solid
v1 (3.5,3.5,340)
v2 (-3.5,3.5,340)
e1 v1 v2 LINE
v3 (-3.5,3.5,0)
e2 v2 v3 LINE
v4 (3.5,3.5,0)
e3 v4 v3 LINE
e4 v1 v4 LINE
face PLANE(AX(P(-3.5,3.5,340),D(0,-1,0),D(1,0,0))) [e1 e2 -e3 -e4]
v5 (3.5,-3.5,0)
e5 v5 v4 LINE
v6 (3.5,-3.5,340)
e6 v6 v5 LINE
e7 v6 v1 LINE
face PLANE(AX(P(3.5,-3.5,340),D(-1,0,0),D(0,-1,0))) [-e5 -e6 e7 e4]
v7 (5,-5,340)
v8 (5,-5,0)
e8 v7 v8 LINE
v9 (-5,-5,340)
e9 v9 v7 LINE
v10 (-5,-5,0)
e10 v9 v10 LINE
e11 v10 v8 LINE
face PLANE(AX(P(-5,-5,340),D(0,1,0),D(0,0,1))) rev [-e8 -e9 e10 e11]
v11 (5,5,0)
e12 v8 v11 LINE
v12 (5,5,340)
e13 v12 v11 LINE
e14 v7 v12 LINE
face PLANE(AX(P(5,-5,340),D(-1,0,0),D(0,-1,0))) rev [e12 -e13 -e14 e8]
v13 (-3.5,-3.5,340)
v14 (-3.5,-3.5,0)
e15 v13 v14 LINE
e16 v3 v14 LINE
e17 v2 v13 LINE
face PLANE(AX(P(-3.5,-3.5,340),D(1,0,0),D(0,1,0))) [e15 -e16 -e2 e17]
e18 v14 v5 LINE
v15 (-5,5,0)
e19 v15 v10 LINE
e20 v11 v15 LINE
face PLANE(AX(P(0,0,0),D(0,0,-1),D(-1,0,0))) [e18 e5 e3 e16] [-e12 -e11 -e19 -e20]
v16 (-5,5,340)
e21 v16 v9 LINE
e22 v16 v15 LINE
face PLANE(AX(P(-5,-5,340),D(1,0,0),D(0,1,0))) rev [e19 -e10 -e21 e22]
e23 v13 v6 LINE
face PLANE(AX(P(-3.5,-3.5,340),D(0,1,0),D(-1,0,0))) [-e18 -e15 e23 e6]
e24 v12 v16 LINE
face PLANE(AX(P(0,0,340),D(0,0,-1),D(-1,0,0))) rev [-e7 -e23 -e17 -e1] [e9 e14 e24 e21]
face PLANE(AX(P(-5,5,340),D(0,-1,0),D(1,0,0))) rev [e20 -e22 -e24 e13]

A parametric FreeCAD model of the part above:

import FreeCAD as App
import Part
import Sketcher
from FreeCAD import Vector
Q = App.Units.Quantity

doc = App.newDocument("Part")
params = doc.addObject("Spreadsheet::Sheet", "Params")
for row, (alias, value) in enumerate([
    ("sketch1_width", "10 mm"),
    ("sketch1_width2", "7 mm"),
    ("pad1_length", "340 mm"),
], start=1):
    params.set(f"A{row}", alias)
    params.set(f"B{row}", "=" + value)
    params.setAlias(f"B{row}", alias)

body = doc.addObject("PartDesign::Body", "Body")

# Sketch on XY plane
sketch1 = doc.addObject("Sketcher::SketchObject", "Sketch")
body.addObject(sketch1)
sketch1.AttachmentSupport = (doc.XY_Plane, [""])
sketch1.MapMode = "FlatFace"
sketch1.addGeometry([
    Part.LineSegment(Vector(-5, 5, 0), Vector(-5, -5, 0)),  # 0
    Part.LineSegment(Vector(-5, -5, 0), Vector(5, -5, 0)),  # 1
    Part.LineSegment(Vector(5, -5, 0), Vector(5, 5, 0)),  # 2
    Part.LineSegment(Vector(5, 5, 0), Vector(-5, 5, 0)),  # 3
    Part.LineSegment(Vector(4, -4, 0), Vector(-4, -4, 0)),  # 4
    Part.LineSegment(Vector(-4, -4, 0), Vector(-4, 4, 0)),  # 5
    Part.LineSegment(Vector(-4, 4, 0), Vector(4, 4, 0)),  # 6
    Part.LineSegment(Vector(4, 4, 0), Vector(4, -4, 0)),  # 7
], False)
sketch1.addConstraint([
    Sketcher.Constraint("Coincident", 0, 2, 1, 1),
    Sketcher.Constraint("Coincident", 1, 2, 2, 1),
    Sketcher.Constraint("Coincident", 2, 2, 3, 1),
    Sketcher.Constraint("Coincident", 3, 2, 0, 1),
    Sketcher.Constraint("Coincident", 4, 2, 5, 1),
    Sketcher.Constraint("Coincident", 5, 2, 6, 1),
    Sketcher.Constraint("Coincident", 6, 2, 7, 1),
    Sketcher.Constraint("Coincident", 7, 2, 4, 1),
    Sketcher.Constraint("Vertical", 0),
    Sketcher.Constraint("Horizontal", 1),
    Sketcher.Constraint("Vertical", 2),
    Sketcher.Constraint("Horizontal", 3),
    Sketcher.Constraint("Horizontal", 4),
    Sketcher.Constraint("Vertical", 5),
    Sketcher.Constraint("Horizontal", 6),
    Sketcher.Constraint("Vertical", 7),
    Sketcher.Constraint("Symmetric", 0, 2, 2, 2, -1, 1),
    Sketcher.Constraint("Symmetric", 4, 2, 6, 2, -1, 1),
    Sketcher.Constraint("Equal", 3, 0),
    Sketcher.Constraint("Equal", 6, 5),
    Sketcher.Constraint("DistanceX", 1, 1, 1, 2, Q("10 mm")),
    Sketcher.Constraint("DistanceX", 4, 2, 4, 1, Q("7 mm")),
])
sketch1.setExpression("Constraints[20]", "Params.sketch1_width")
sketch1.setExpression("Constraints[21]", "Params.sketch1_width2")
pad1 = doc.addObject("PartDesign::Pad", "Pad")
body.addObject(pad1)
pad1.Profile = sketch1
pad1.setExpression("Length", "Params.pad1_length")

doc.recompute()
